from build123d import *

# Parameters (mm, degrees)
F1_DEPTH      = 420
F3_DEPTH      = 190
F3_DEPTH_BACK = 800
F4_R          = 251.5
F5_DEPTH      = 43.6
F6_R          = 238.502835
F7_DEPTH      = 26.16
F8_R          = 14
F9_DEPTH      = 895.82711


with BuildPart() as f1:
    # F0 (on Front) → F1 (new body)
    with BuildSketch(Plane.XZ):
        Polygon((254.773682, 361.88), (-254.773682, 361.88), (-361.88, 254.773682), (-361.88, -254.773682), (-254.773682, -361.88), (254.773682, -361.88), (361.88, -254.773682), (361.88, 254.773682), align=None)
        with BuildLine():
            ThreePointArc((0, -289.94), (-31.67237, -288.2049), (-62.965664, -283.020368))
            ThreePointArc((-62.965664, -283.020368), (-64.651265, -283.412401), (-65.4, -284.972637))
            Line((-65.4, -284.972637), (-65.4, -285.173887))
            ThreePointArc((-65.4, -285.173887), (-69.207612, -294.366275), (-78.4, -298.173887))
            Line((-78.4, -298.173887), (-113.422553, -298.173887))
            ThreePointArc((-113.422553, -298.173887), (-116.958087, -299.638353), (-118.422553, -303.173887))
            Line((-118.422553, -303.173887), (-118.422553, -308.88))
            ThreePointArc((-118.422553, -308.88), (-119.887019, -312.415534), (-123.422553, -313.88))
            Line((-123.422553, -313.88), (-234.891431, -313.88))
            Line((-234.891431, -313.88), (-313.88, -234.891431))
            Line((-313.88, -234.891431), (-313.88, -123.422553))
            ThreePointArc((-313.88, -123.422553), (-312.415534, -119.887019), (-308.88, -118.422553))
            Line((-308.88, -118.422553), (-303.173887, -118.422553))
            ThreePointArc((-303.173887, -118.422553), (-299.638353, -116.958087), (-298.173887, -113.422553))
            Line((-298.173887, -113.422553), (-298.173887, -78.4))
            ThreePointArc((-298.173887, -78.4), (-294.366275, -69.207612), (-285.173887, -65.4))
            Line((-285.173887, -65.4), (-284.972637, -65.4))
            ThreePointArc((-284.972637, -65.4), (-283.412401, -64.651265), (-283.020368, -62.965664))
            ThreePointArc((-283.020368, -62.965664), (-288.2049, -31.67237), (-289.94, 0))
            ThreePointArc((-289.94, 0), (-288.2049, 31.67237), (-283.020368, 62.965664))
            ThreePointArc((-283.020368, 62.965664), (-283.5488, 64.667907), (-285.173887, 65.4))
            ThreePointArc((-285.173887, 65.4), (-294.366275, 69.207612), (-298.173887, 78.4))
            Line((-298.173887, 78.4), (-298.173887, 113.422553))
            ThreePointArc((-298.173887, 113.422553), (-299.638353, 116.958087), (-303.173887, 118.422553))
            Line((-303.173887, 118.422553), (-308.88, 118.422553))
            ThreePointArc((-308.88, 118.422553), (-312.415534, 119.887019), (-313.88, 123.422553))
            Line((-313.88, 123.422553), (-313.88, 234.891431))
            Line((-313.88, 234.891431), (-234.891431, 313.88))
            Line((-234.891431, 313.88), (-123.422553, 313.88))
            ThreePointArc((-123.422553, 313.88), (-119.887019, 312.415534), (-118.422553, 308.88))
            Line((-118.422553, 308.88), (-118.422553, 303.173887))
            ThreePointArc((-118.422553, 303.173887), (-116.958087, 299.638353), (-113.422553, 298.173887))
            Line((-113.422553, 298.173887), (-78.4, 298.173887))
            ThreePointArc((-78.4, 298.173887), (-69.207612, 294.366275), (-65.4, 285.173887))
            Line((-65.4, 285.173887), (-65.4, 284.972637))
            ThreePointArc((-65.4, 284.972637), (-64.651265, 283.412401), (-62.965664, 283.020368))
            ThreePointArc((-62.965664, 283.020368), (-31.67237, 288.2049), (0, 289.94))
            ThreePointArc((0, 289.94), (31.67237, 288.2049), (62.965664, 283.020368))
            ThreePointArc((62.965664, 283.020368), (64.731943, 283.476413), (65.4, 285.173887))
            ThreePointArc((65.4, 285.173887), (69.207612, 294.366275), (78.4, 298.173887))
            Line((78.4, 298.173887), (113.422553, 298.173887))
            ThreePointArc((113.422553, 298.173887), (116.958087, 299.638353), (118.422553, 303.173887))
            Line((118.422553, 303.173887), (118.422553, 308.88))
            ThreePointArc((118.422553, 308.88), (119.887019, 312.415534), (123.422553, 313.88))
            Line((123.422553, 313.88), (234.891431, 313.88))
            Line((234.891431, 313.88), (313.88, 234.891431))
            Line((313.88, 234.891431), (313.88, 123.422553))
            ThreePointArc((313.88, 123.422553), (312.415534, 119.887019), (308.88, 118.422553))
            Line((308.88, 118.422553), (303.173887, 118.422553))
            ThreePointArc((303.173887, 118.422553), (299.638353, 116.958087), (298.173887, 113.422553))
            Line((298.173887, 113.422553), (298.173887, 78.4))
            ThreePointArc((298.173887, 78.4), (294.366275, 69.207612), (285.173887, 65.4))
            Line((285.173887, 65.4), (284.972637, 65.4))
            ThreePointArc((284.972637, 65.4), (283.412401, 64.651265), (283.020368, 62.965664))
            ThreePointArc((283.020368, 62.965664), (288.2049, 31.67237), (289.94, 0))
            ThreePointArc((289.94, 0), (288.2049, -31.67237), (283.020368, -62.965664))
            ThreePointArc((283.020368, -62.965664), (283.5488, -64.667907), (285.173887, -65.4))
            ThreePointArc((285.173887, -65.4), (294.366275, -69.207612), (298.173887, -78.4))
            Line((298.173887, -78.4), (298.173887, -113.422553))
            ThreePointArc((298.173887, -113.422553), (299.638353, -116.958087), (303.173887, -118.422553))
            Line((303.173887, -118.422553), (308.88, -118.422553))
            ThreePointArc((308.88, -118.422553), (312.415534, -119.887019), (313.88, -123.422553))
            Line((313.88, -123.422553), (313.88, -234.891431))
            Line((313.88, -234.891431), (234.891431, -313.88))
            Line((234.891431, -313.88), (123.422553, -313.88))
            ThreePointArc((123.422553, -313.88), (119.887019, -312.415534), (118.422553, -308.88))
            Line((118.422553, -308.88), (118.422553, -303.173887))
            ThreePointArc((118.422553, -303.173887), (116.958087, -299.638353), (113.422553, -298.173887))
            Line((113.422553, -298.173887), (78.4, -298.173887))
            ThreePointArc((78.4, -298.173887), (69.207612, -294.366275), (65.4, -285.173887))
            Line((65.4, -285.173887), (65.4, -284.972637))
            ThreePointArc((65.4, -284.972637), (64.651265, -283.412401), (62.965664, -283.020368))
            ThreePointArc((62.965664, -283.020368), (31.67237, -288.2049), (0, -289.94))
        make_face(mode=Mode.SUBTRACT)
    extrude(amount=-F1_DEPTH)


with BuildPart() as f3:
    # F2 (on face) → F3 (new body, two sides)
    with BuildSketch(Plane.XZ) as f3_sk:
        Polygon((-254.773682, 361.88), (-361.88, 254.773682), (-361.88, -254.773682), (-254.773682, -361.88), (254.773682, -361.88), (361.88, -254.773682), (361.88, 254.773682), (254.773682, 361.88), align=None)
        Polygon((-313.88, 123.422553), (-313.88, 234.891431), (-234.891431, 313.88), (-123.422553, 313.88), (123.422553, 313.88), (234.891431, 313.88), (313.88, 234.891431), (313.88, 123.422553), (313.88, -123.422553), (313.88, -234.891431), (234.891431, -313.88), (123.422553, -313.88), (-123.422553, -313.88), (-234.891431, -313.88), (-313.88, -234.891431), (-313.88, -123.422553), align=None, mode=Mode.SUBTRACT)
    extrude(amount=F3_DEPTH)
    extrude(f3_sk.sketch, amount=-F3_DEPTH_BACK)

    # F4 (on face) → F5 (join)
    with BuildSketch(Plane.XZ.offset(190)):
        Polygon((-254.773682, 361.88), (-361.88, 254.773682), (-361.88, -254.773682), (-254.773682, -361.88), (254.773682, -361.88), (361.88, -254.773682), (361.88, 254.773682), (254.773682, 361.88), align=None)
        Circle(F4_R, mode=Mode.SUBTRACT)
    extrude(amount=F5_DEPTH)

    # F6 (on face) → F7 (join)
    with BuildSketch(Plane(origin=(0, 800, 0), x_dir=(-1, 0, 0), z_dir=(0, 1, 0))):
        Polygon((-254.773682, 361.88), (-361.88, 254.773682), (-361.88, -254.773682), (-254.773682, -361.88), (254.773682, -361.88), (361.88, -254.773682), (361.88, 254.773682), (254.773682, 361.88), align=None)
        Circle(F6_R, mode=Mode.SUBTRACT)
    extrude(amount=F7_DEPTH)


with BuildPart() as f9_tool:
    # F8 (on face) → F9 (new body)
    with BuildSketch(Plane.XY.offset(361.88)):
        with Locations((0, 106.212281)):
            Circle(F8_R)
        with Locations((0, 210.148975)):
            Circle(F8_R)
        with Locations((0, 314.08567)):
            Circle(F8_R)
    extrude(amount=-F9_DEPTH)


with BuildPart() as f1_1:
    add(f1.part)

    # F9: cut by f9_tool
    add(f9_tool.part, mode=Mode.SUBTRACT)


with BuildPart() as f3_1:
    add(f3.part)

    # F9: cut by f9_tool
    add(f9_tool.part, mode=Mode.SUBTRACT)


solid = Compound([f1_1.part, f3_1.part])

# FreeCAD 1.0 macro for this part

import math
import FreeCAD as App
import Part
import Sketcher

doc = App.newDocument("Part")
body = doc.addObject("PartDesign::Body", "Body")

sketch1 = body.newObject("Sketcher::SketchObject", "Sketch")
sketch1.AttachmentSupport = (doc.getObject("XZ_Plane"), [""])
sketch1.MapMode = "FlatFace"
sketch1.addGeometry([
    Part.LineSegment(App.Vector(254.773682, 361.88, 0), App.Vector(-254.773682, 361.88, 0)),
    Part.LineSegment(App.Vector(-254.773682, 361.88, 0), App.Vector(-361.88, 254.773682, 0)),
    Part.LineSegment(App.Vector(-361.88, 254.773682, 0), App.Vector(-361.88, -254.773682, 0)),
    Part.LineSegment(App.Vector(-361.88, -254.773682, 0), App.Vector(-254.773682, -361.88, 0)),
    Part.LineSegment(App.Vector(-254.773682, -361.88, 0), App.Vector(254.773682, -361.88, 0)),
    Part.LineSegment(App.Vector(254.773682, -361.88, 0), App.Vector(361.88, -254.773682, 0)),
    Part.LineSegment(App.Vector(361.88, -254.773682, 0), App.Vector(361.88, 254.773682, 0)),
    Part.LineSegment(App.Vector(361.88, 254.773682, 0), App.Vector(254.773682, 361.88, 0)),
    Part.ArcOfCircle(Part.Circle(App.Vector(-0.000006, 0.000048, 0), App.Vector(0, 0, 1), 289.940048), math.radians(-89.999999), math.radians(-77.457256)),
    Part.ArcOfCircle(Part.Circle(App.Vector(0.000006, 0.000048, 0), App.Vector(0, 0, 1), 289.940048), math.radians(-102.542744), math.radians(-90.000001)),
    Part.ArcOfCircle(Part.Circle(App.Vector(-63.4, -284.972637, 0), App.Vector(0, 0, 1), 2), math.radians(77.457267), math.radians(179.999998)),
    Part.LineSegment(App.Vector(-65.4, -284.972637, 0), App.Vector(-65.4, -285.173887, 0)),
    Part.ArcOfCircle(Part.Circle(App.Vector(-78.400001, -285.173886, 0), App.Vector(0, 0, 1), 13.000001), math.radians(-89.999998), math.radians(-0.000002)),
    Part.LineSegment(App.Vector(-78.4, -298.173887, 0), App.Vector(-113.422553, -298.173887, 0)),
    Part.ArcOfCircle(Part.Circle(App.Vector(-113.422553, -303.173887, 0), App.Vector(0, 0, 1), 5), math.radians(89.999996), math.radians(180.000004)),
    Part.LineSegment(App.Vector(-118.422553, -303.173887, 0), App.Vector(-118.422553, -308.88, 0)),
    Part.ArcOfCircle(Part.Circle(App.Vector(-123.422553, -308.88, 0), App.Vector(0, 0, 1), 5), math.radians(-90.000004), math.radians(0.000004)),
    Part.LineSegment(App.Vector(-123.422553, -313.88, 0), App.Vector(-234.891431, -313.88, 0)),
    Part.LineSegment(App.Vector(-234.891431, -313.88, 0), App.Vector(-313.88, -234.891431, 0)),
    Part.LineSegment(App.Vector(-313.88, -234.891431, 0), App.Vector(-313.88, -123.422553, 0)),
    Part.ArcOfCircle(Part.Circle(App.Vector(-308.88, -123.422553, 0), App.Vector(0, 0, 1), 5), math.radians(89.999996), math.radians(180.000004)),
    Part.LineSegment(App.Vector(-308.88, -118.422553, 0), App.Vector(-303.173887, -118.422553, 0)),
    Part.ArcOfCircle(Part.Circle(App.Vector(-303.173887, -113.422553, 0), App.Vector(0, 0, 1), 5), math.radians(-90.000004), math.radians(0.000004)),
    Part.LineSegment(App.Vector(-298.173887, -113.422553, 0), App.Vector(-298.173887, -78.4, 0)),
    Part.ArcOfCircle(Part.Circle(App.Vector(-285.173886, -78.400001, 0), App.Vector(0, 0, 1), 13.000001), math.radians(90.000002), math.radians(179.999998)),
    Part.LineSegment(App.Vector(-285.173887, -65.4, 0), App.Vector(-284.972637, -65.4, 0)),
    Part.ArcOfCircle(Part.Circle(App.Vector(-284.972637, -63.4, 0), App.Vector(0, 0, 1), 2), math.radians(-89.999998), math.radians(12.542733)),
    Part.ArcOfCircle(Part.Circle(App.Vector(0.000048, 0.000006, 0), App.Vector(0, 0, 1), 289.940048), math.radians(-179.999999), math.radians(-167.457256)),
    Part.ArcOfCircle(Part.Circle(App.Vector(0.000048, -0.000006, 0), App.Vector(0, 0, 1), 289.940048), math.radians(167.457256), math.radians(179.999999)),
    Part.ArcOfCircle(Part.Circle(App.Vector(-285.173887, 63.230284, 0), App.Vector(0, 0, 1), 2.169716), math.radians(-7.00527), math.radians(90)),
    Part.ArcOfCircle(Part.Circle(App.Vector(-285.173886, 78.400001, 0), App.Vector(0, 0, 1), 13.000001), math.radians(-179.999998), math.radians(-90.000002)),
    Part.LineSegment(App.Vector(-298.173887, 78.4, 0), App.Vector(-298.173887, 113.422553, 0)),
    Part.ArcOfCircle(Part.Circle(App.Vector(-303.173887, 113.422553, 0), App.Vector(0, 0, 1), 5), math.radians(-0.000004), math.radians(90.000004)),
    Part.LineSegment(App.Vector(-303.173887, 118.422553, 0), App.Vector(-308.88, 118.422553, 0)),
    Part.ArcOfCircle(Part.Circle(App.Vector(-308.88, 123.422553, 0), App.Vector(0, 0, 1), 5), math.radians(179.999996), math.radians(270.000004)),
    Part.LineSegment(App.Vector(-313.88, 123.422553, 0), App.Vector(-313.88, 234.891431, 0)),
    Part.LineSegment(App.Vector(-313.88, 234.891431, 0), App.Vector(-234.891431, 313.88, 0)),
    Part.LineSegment(App.Vector(-234.891431, 313.88, 0), App.Vector(-123.422553, 313.88, 0)),
    Part.ArcOfCircle(Part.Circle(App.Vector(-123.422553, 308.88, 0), App.Vector(0, 0, 1), 5), math.radians(-0.000004), math.radians(90.000004)),
    Part.LineSegment(App.Vector(-118.422553, 308.88, 0), App.Vector(-118.422553, 303.173887, 0)),
    Part.ArcOfCircle(Part.Circle(App.Vector(-113.422553, 303.173887, 0), App.Vector(0, 0, 1), 5), math.radians(179.999996), math.radians(270.000004)),
    Part.LineSegment(App.Vector(-113.422553, 298.173887, 0), App.Vector(-78.4, 298.173887, 0)),
    Part.ArcOfCircle(Part.Circle(App.Vector(-78.400001, 285.173886, 0), App.Vector(0, 0, 1), 13.000001), math.radians(0.000002), math.radians(89.999998)),
    Part.LineSegment(App.Vector(-65.4, 285.173887, 0), App.Vector(-65.4, 284.972637, 0)),
    Part.ArcOfCircle(Part.Circle(App.Vector(-63.4, 284.972637, 0), App.Vector(0, 0, 1), 2), math.radians(-179.999998), math.radians(-77.457267)),
    Part.ArcOfCircle(Part.Circle(App.Vector(0.000006, -0.000048, 0), App.Vector(0, 0, 1), 289.940048), math.radians(90.000001), math.radians(102.542744)),
    Part.ArcOfCircle(Part.Circle(App.Vector(-0.000006, -0.000048, 0), App.Vector(0, 0, 1), 289.940048), math.radians(77.457256), math.radians(89.999999)),
    Part.ArcOfCircle(Part.Circle(App.Vector(63.401671, 284.980151, 0), App.Vector(0, 0, 1), 2.007698), math.radians(-102.542724), math.radians(5.537455)),
    Part.ArcOfCircle(Part.Circle(App.Vector(78.400001, 285.173886, 0), App.Vector(0, 0, 1), 13.000001), math.radians(90.000002), math.radians(179.999998)),
    Part.LineSegment(App.Vector(78.4, 298.173887, 0), App.Vector(113.422553, 298.173887, 0)),
    Part.ArcOfCircle(Part.Circle(App.Vector(113.422553, 303.173887, 0), App.Vector(0, 0, 1), 5), math.radians(-90.000004), math.radians(0.000004)),
    Part.LineSegment(App.Vector(118.422553, 303.173887, 0), App.Vector(118.422553, 308.88, 0)),
    Part.ArcOfCircle(Part.Circle(App.Vector(123.422553, 308.88, 0), App.Vector(0, 0, 1), 5), math.radians(89.999996), math.radians(180.000004)),
    Part.LineSegment(App.Vector(123.422553, 313.88, 0), App.Vector(234.891431, 313.88, 0)),
    Part.LineSegment(App.Vector(234.891431, 313.88, 0), App.Vector(313.88, 234.891431, 0)),
    Part.LineSegment(App.Vector(313.88, 234.891431, 0), App.Vector(313.88, 123.422553, 0)),
    Part.ArcOfCircle(Part.Circle(App.Vector(308.88, 123.422553, 0), App.Vector(0, 0, 1), 5), math.radians(-90.000004), math.radians(0.000004)),
    Part.LineSegment(App.Vector(308.88, 118.422553, 0), App.Vector(303.173887, 118.422553, 0)),
    Part.ArcOfCircle(Part.Circle(App.Vector(303.173887, 113.422553, 0), App.Vector(0, 0, 1), 5), math.radians(89.999996), math.radians(180.000004)),
    Part.LineSegment(App.Vector(298.173887, 113.422553, 0), App.Vector(298.173887, 78.4, 0)),
    Part.ArcOfCircle(Part.Circle(App.Vector(285.173886, 78.400001, 0), App.Vector(0, 0, 1), 13.000001), math.radians(-89.999998), math.radians(-0.000002)),
    Part.LineSegment(App.Vector(285.173887, 65.4, 0), App.Vector(284.972637, 65.4, 0)),
    Part.ArcOfCircle(Part.Circle(App.Vector(284.972637, 63.4, 0), App.Vector(0, 0, 1), 2), math.radians(90.000002), math.radians(192.542733)),
    Part.ArcOfCircle(Part.Circle(App.Vector(-0.000048, -0.000006, 0), App.Vector(0, 0, 1), 289.940048), math.radians(0.000001), math.radians(12.542744)),
    Part.ArcOfCircle(Part.Circle(App.Vector(-0.000048, 0.000006, 0), App.Vector(0, 0, 1), 289.940048), math.radians(-12.542744), math.radians(-0.000001)),
    Part.ArcOfCircle(Part.Circle(App.Vector(285.173887, -63.230284, 0), App.Vector(0, 0, 1), 2.169716), math.radians(172.99473), math.radians(270)),
    Part.ArcOfCircle(Part.Circle(App.Vector(285.173886, -78.400001, 0), App.Vector(0, 0, 1), 13.000001), math.radians(0.000002), math.radians(89.999998)),
    Part.LineSegment(App.Vector(298.173887, -78.4, 0), App.Vector(298.173887, -113.422553, 0)),
    Part.ArcOfCircle(Part.Circle(App.Vector(303.173887, -113.422553, 0), App.Vector(0, 0, 1), 5), math.radians(179.999996), math.radians(270.000004)),
    Part.LineSegment(App.Vector(303.173887, -118.422553, 0), App.Vector(308.88, -118.422553, 0)),
    Part.ArcOfCircle(Part.Circle(App.Vector(308.88, -123.422553, 0), App.Vector(0, 0, 1), 5), math.radians(-0.000004), math.radians(90.000004)),
    Part.LineSegment(App.Vector(313.88, -123.422553, 0), App.Vector(313.88, -234.891431, 0)),
    Part.LineSegment(App.Vector(313.88, -234.891431, 0), App.Vector(234.891431, -313.88, 0)),
    Part.LineSegment(App.Vector(234.891431, -313.88, 0), App.Vector(123.422553, -313.88, 0)),
    Part.ArcOfCircle(Part.Circle(App.Vector(123.422553, -308.88, 0), App.Vector(0, 0, 1), 5), math.radians(179.999996), math.radians(270.000004)),
    Part.LineSegment(App.Vector(118.422553, -308.88, 0), App.Vector(118.422553, -303.173887, 0)),
    Part.ArcOfCircle(Part.Circle(App.Vector(113.422553, -303.173887, 0), App.Vector(0, 0, 1), 5), math.radians(-0.000004), math.radians(90.000004)),
    Part.LineSegment(App.Vector(113.422553, -298.173887, 0), App.Vector(78.4, -298.173887, 0)),
    Part.ArcOfCircle(Part.Circle(App.Vector(78.400001, -285.173886, 0), App.Vector(0, 0, 1), 13.000001), math.radians(-179.999998), math.radians(-90.000002)),
    Part.LineSegment(App.Vector(65.4, -285.173887, 0), App.Vector(65.4, -284.972637, 0)),
    Part.ArcOfCircle(Part.Circle(App.Vector(63.4, -284.972637, 0), App.Vector(0, 0, 1), 2), math.radians(0.000002), math.radians(102.542733)),
], False)
sketch1.addConstraint([
    Sketcher.Constraint("Coincident", 0, 2, 1, 1),
    Sketcher.Constraint("Coincident", 1, 2, 2, 1),
    Sketcher.Constraint("Coincident", 2, 2, 3, 1),
    Sketcher.Constraint("Coincident", 3, 2, 4, 1),
    Sketcher.Constraint("Coincident", 4, 2, 5, 1),
    Sketcher.Constraint("Coincident", 5, 2, 6, 1),
    Sketcher.Constraint("Coincident", 6, 2, 7, 1),
    Sketcher.Constraint("Coincident", 7, 2, 0, 1),
    Sketcher.Constraint("Tangent", 8, 1, 9, 2),
    Sketcher.Constraint("Tangent", 9, 1, 10, 1),
    Sketcher.Constraint("Tangent", 10, 2, 11, 1),
    Sketcher.Constraint("Tangent", 11, 2, 12, 2),
    Sketcher.Constraint("Tangent", 12, 1, 13, 1),
    Sketcher.Constraint("Tangent", 13, 2, 14, 1),
    Sketcher.Constraint("Tangent", 14, 2, 15, 1),
    Sketcher.Constraint("Tangent", 15, 2, 16, 2),
    Sketcher.Constraint("Tangent", 16, 1, 17, 1),
    Sketcher.Constraint("Coincident", 17, 2, 18, 1),
    Sketcher.Constraint("Coincident", 18, 2, 19, 1),
    Sketcher.Constraint("Tangent", 19, 2, 20, 2),
    Sketcher.Constraint("Tangent", 20, 1, 21, 1),
    Sketcher.Constraint("Tangent", 21, 2, 22, 1),
    Sketcher.Constraint("Tangent", 22, 2, 23, 1),
    Sketcher.Constraint("Tangent", 23, 2, 24, 2),
    Sketcher.Constraint("Tangent", 24, 1, 25, 1),
    Sketcher.Constraint("Tangent", 25, 2, 26, 1),
    Sketcher.Constraint("Tangent", 26, 2, 27, 2),
    Sketcher.Constraint("Tangent", 27, 1, 28, 2),
    Sketcher.Constraint("Coincident", 28, 1, 29, 1),
    Sketcher.Constraint("Tangent", 29, 2, 30, 2),
    Sketcher.Constraint("Tangent", 30, 1, 31, 1),
    Sketcher.Constraint("Tangent", 31, 2, 32, 1),
    Sketcher.Constraint("Tangent", 32, 2, 33, 1),
    Sketcher.Constraint("Tangent", 33, 2, 34, 2),
    Sketcher.Constraint("Tangent", 34, 1, 35, 1),
    Sketcher.Constraint("Coincident", 35, 2, 36, 1),
    Sketcher.Constraint("Coincident", 36, 2, 37, 1),
    Sketcher.Constraint("Tangent", 37, 2, 38, 2),
    Sketcher.Constraint("Tangent", 38, 1, 39, 1),
    Sketcher.Constraint("Tangent", 39, 2, 40, 1),
    Sketcher.Constraint("Tangent", 40, 2, 41, 1),
    Sketcher.Constraint("Tangent", 41, 2, 42, 2),
    Sketcher.Constraint("Tangent", 42, 1, 43, 1),
    Sketcher.Constraint("Tangent", 43, 2, 44, 1),
    Sketcher.Constraint("Tangent", 44, 2, 45, 2),
    Sketcher.Constraint("Tangent", 45, 1, 46, 2),
    Sketcher.Constraint("Tangent", 46, 1, 47, 1),
    Sketcher.Constraint("Coincident", 47, 2, 48, 2),
    Sketcher.Constraint("Tangent", 48, 1, 49, 1),
    Sketcher.Constraint("Tangent", 49, 2, 50, 1),
    Sketcher.Constraint("Tangent", 50, 2, 51, 1),
    Sketcher.Constraint("Tangent", 51, 2, 52, 2),
    Sketcher.Constraint("Tangent", 52, 1, 53, 1),
    Sketcher.Constraint("Coincident", 53, 2, 54, 1),
    Sketcher.Constraint("Coincident", 54, 2, 55, 1),
    Sketcher.Constraint("Tangent", 55, 2, 56, 2),
    Sketcher.Constraint("Tangent", 56, 1, 57, 1),
    Sketcher.Constraint("Tangent", 57, 2, 58, 1),
    Sketcher.Constraint("Tangent", 58, 2, 59, 1),
    Sketcher.Constraint("Tangent", 59, 2, 60, 2),
    Sketcher.Constraint("Tangent", 60, 1, 61, 1),
    Sketcher.Constraint("Tangent", 61, 2, 62, 1),
    Sketcher.Constraint("Tangent", 62, 2, 63, 2),
    Sketcher.Constraint("Tangent", 63, 1, 64, 2),
    Sketcher.Constraint("Coincident", 64, 1, 65, 1),
    Sketcher.Constraint("Tangent", 65, 2, 66, 2),
    Sketcher.Constraint("Tangent", 66, 1, 67, 1),
    Sketcher.Constraint("Tangent", 67, 2, 68, 1),
    Sketcher.Constraint("Tangent", 68, 2, 69, 1),
    Sketcher.Constraint("Tangent", 69, 2, 70, 2),
    Sketcher.Constraint("Tangent", 70, 1, 71, 1),
    Sketcher.Constraint("Coincident", 71, 2, 72, 1),
    Sketcher.Constraint("Coincident", 72, 2, 73, 1),
    Sketcher.Constraint("Tangent", 73, 2, 74, 2),
    Sketcher.Constraint("Tangent", 74, 1, 75, 1),
    Sketcher.Constraint("Tangent", 75, 2, 76, 1),
    Sketcher.Constraint("Tangent", 76, 2, 77, 1),
    Sketcher.Constraint("Tangent", 77, 2, 78, 2),
    Sketcher.Constraint("Tangent", 78, 1, 79, 1),
    Sketcher.Constraint("Tangent", 79, 2, 80, 1),
    Sketcher.Constraint("Tangent", 80, 2, 8, 2),
    Sketcher.Constraint("Horizontal", 0),
    Sketcher.Constraint("Vertical", 2),
    Sketcher.Constraint("Horizontal", 4),
    Sketcher.Constraint("Vertical", 6),
    Sketcher.Constraint("Vertical", 11),
    Sketcher.Constraint("Horizontal", 13),
    Sketcher.Constraint("Vertical", 15),
    Sketcher.Constraint("Horizontal", 17),
    Sketcher.Constraint("Vertical", 19),
    Sketcher.Constraint("Horizontal", 21),
    Sketcher.Constraint("Vertical", 23),
    Sketcher.Constraint("Horizontal", 25),
    Sketcher.Constraint("Vertical", 31),
    Sketcher.Constraint("Horizontal", 33),
    Sketcher.Constraint("Vertical", 35),
    Sketcher.Constraint("Horizontal", 37),
    Sketcher.Constraint("Vertical", 39),
    Sketcher.Constraint("Horizontal", 41),
    Sketcher.Constraint("Vertical", 43),
    Sketcher.Constraint("Horizontal", 49),
    Sketcher.Constraint("Vertical", 51),
    Sketcher.Constraint("Horizontal", 53),
    Sketcher.Constraint("Vertical", 55),
    Sketcher.Constraint("Horizontal", 57),
    Sketcher.Constraint("Vertical", 59),
    Sketcher.Constraint("Horizontal", 61),
    Sketcher.Constraint("Vertical", 67),
    Sketcher.Constraint("Horizontal", 69),
    Sketcher.Constraint("Vertical", 71),
    Sketcher.Constraint("Horizontal", 73),
    Sketcher.Constraint("Vertical", 75),
    Sketcher.Constraint("Horizontal", 77),
    Sketcher.Constraint("Vertical", 79),
    Sketcher.Constraint("Equal", 8, 9),
    Sketcher.Constraint("Equal", 14, 16),
    Sketcher.Constraint("Equal", 16, 20),
    Sketcher.Constraint("Equal", 20, 22),
    Sketcher.Constraint("Equal", 12, 24),
    Sketcher.Constraint("Equal", 10, 26),
    Sketcher.Constraint("Equal", 9, 27),
    Sketcher.Constraint("Equal", 27, 28),
    Sketcher.Constraint("Equal", 24, 30),
    Sketcher.Constraint("Equal", 22, 32),
    Sketcher.Constraint("Equal", 32, 34),
    Sketcher.Constraint("Equal", 34, 38),
    Sketcher.Constraint("Equal", 38, 40),
    Sketcher.Constraint("Equal", 30, 42),
    Sketcher.Constraint("Equal", 26, 44),
    Sketcher.Constraint("Equal", 28, 45),
    Sketcher.Constraint("Equal", 45, 46),
    Sketcher.Constraint("Equal", 42, 48),
    Sketcher.Constraint("Equal", 40, 50),
    Sketcher.Constraint("Equal", 50, 52),
    Sketcher.Constraint("Equal", 52, 56),
    Sketcher.Constraint("Equal", 56, 58),
    Sketcher.Constraint("Equal", 48, 60),
    Sketcher.Constraint("Equal", 44, 62),
    Sketcher.Constraint("Equal", 46, 63),
    Sketcher.Constraint("Equal", 63, 64),
    Sketcher.Constraint("Equal", 29, 65),
    Sketcher.Constraint("Equal", 60, 66),
    Sketcher.Constraint("Equal", 58, 68),
    Sketcher.Constraint("Equal", 68, 70),
    Sketcher.Constraint("Equal", 70, 74),
    Sketcher.Constraint("Equal", 74, 76),
    Sketcher.Constraint("Equal", 66, 78),
    Sketcher.Constraint("Equal", 62, 80),
    Sketcher.Constraint("Symmetric", 8, 3, 45, 3, -1, 1),
    Sketcher.Constraint("Symmetric", 12, 3, 48, 3, -1, 1),
    Sketcher.Constraint("Symmetric", 16, 3, 52, 3, -1, 1),
    Sketcher.Constraint("Symmetric", 20, 3, 56, 3, -1, 1),
    Sketcher.Constraint("Symmetric", 24, 3, 60, 3, -1, 1),
    Sketcher.Constraint("Symmetric", 27, 3, 63, 3, -1, 1),
    Sketcher.Constraint("Symmetric", 29, 3, 65, 3, -1, 1),
    Sketcher.Constraint("Symmetric", 32, 3, 68, 3, -1, 1),
    Sketcher.Constraint("Symmetric", 38, 3, 74, 3, -1, 1),
    Sketcher.Constraint("Symmetric", 42, 3, 78, 3, -1, 1),
    Sketcher.Constraint("Symmetric", 0, 2, 4, 2, -1, 1),
    Sketcher.Constraint("Symmetric", 1, 2, 5, 2, -1, 1),
    Sketcher.Constraint("Symmetric", 35, 2, 71, 2, -1, 1),
    Sketcher.Constraint("Symmetric", 42, 3, 48, 3, -2),
    Sketcher.Constraint("Symmetric", 38, 3, 52, 3, -2),
    Sketcher.Constraint("Symmetric", 34, 3, 56, 3, -2),
    Sketcher.Constraint("Symmetric", 30, 3, 60, 3, -2),
    Sketcher.Constraint("Symmetric", 44, 2, 46, 1, -2),
    Sketcher.Constraint("Symmetric", 28, 1, 62, 2, -2),
    Sketcher.Constraint("PointOnObject", 8, 1, -2),
    Sketcher.Constraint("PointOnObject", 27, 1, -1),
    Sketcher.Constraint("PointOnObject", 45, 1, -2),
    Sketcher.Constraint("PointOnObject", 63, 1, -1),
    Sketcher.Constraint("Perpendicular", 1, 3),
    Sketcher.Constraint("Perpendicular", 5, 7),
    Sketcher.Constraint("Parallel", 7, 18),
    Sketcher.Constraint("Perpendicular", 18, 36),
    Sketcher.Constraint("Perpendicular", 36, 54),
    Sketcher.Constraint("Perpendicular", 54, 72),
    Sketcher.Constraint("Horizontal", 2, 2, 5, 2),
    Sketcher.Constraint("Horizontal", 1, 2, 6, 2),
    Sketcher.Constraint("Horizontal", 42, 1, 47, 2),
    Sketcher.Constraint("Horizontal", 35, 2, 54, 2),
    Sketcher.Constraint("Horizontal", 18, 2, 71, 2),
    Sketcher.Constraint("Vertical", 24, 3, 29, 3),
    Sketcher.Constraint("Vertical", 0, 2, 3, 2),
    Sketcher.Constraint("Equal", 4, 2),
    Sketcher.Constraint("Equal", 61, 11),
    Sketcher.Constraint("Equal", 69, 15),
    Sketcher.Constraint("Equal", 73, 19),
    Sketcher.Constraint("Equal", 77, 23),
    Sketcher.Constraint("Radius", 10, 2.0),
    Sketcher.Constraint("Radius", 12, 13.000001),
    Sketcher.Constraint("Radius", 14, 5.0),
    Sketcher.Constraint("DistanceX", 10, 3, -1, 1, 63.4),
    Sketcher.Constraint("DistanceY", 24, 3, -1, 1, 78.400001),
    Sketcher.Constraint("Radius", 47, 2.007698),
    Sketcher.Constraint("DistanceY", 16, 3, -1, 1, 308.88),
    Sketcher.Constraint("DistanceY", -1, 1, 0, 2, 361.88),
    Sketcher.Constraint("DistanceY", 8, 1, -1, 1, 289.94),
    Sketcher.Constraint("Radius", 8, 289.940048),
    Sketcher.Constraint("DistanceX", 17, 2, 17, 1, 111.468878),
    Sketcher.Constraint("DistanceX", 0, 2, 0, 1, 509.547364),
    Sketcher.Constraint("DistanceX", 13, 2, 13, 1, 35.022553),
])
pad1 = body.newObject("PartDesign::Pad", "Pad")
pad1.Profile = sketch1
pad1.Length = 420
pad1.Reversed = True
body2 = doc.addObject("PartDesign::Body", "Body001")

sketch2 = body2.newObject("Sketcher::SketchObject", "Sketch001")
sketch2.AttachmentSupport = (doc.getObject("XZ_Plane001"), [""])
sketch2.MapMode = "FlatFace"
sketch2.addGeometry([
    Part.LineSegment(App.Vector(-255, 362, 0), App.Vector(-362, 255, 0)),
    Part.LineSegment(App.Vector(-362, 255, 0), App.Vector(-362, -255, 0)),
    Part.LineSegment(App.Vector(-362, -255, 0), App.Vector(-255, -362, 0)),
    Part.LineSegment(App.Vector(-255, -362, 0), App.Vector(255, -362, 0)),
    Part.LineSegment(App.Vector(255, -362, 0), App.Vector(362, -255, 0)),
    Part.LineSegment(App.Vector(362, -255, 0), App.Vector(362, 255, 0)),
    Part.LineSegment(App.Vector(362, 255, 0), App.Vector(255, 362, 0)),
    Part.LineSegment(App.Vector(255, 362, 0), App.Vector(-255, 362, 0)),
    Part.LineSegment(App.Vector(-314, -235, 0), App.Vector(-314, 235, 0)),
    Part.LineSegment(App.Vector(-314, 235, 0), App.Vector(-235, 314, 0)),
    Part.LineSegment(App.Vector(-235, 314, 0), App.Vector(235, 314, 0)),
    Part.LineSegment(App.Vector(235, 314, 0), App.Vector(314, 235, 0)),
    Part.LineSegment(App.Vector(314, 235, 0), App.Vector(314, -235, 0)),
    Part.LineSegment(App.Vector(314, -235, 0), App.Vector(235, -314, 0)),
    Part.LineSegment(App.Vector(235, -314, 0), App.Vector(-235, -314, 0)),
    Part.LineSegment(App.Vector(-235, -314, 0), App.Vector(-314, -235, 0)),
], False)
sketch2.addConstraint([
    Sketcher.Constraint("Coincident", 0, 2, 1, 1),
    Sketcher.Constraint("Coincident", 1, 2, 2, 1),
    Sketcher.Constraint("Coincident", 2, 2, 3, 1),
    Sketcher.Constraint("Coincident", 3, 2, 4, 1),
    Sketcher.Constraint("Coincident", 4, 2, 5, 1),
    Sketcher.Constraint("Coincident", 5, 2, 6, 1),
    Sketcher.Constraint("Coincident", 6, 2, 7, 1),
    Sketcher.Constraint("Coincident", 7, 2, 0, 1),
    Sketcher.Constraint("Coincident", 8, 2, 9, 1),
    Sketcher.Constraint("Coincident", 9, 2, 10, 1),
    Sketcher.Constraint("Coincident", 10, 2, 11, 1),
    Sketcher.Constraint("Coincident", 11, 2, 12, 1),
    Sketcher.Constraint("Coincident", 12, 2, 13, 1),
    Sketcher.Constraint("Coincident", 13, 2, 14, 1),
    Sketcher.Constraint("Coincident", 14, 2, 15, 1),
    Sketcher.Constraint("Coincident", 15, 2, 8, 1),
    Sketcher.Constraint("Vertical", 1),
    Sketcher.Constraint("Horizontal", 3),
    Sketcher.Constraint("Vertical", 5),
    Sketcher.Constraint("Horizontal", 7),
    Sketcher.Constraint("Vertical", 8),
    Sketcher.Constraint("Horizontal", 10),
    Sketcher.Constraint("Vertical", 12),
    Sketcher.Constraint("Horizontal", 14),
    Sketcher.Constraint("Symmetric", 0, 2, 4, 2, -1, 1),
    Sketcher.Constraint("Symmetric", 2, 2, 6, 2, -1, 1),
    Sketcher.Constraint("Symmetric", 8, 2, 12, 2, -1, 1),
    Sketcher.Constraint("Symmetric", 9, 2, 13, 2, -1, 1),
    Sketcher.Constraint("Perpendicular", 0, 2),
    Sketcher.Constraint("Perpendicular", 2, 4),
    Sketcher.Constraint("Perpendicular", 4, 6),
    Sketcher.Constraint("Perpendicular", 6, 9),
    Sketcher.Constraint("Perpendicular", 9, 11),
    Sketcher.Constraint("Perpendicular", 13, 15),
    Sketcher.Constraint("Horizontal", 1, 2, 4, 2),
    Sketcher.Constraint("Horizontal", 8, 2, 11, 2),
    Sketcher.Constraint("Horizontal", 12, 2, 15, 2),
    Sketcher.Constraint("Vertical", 3, 2, 6, 2),
    Sketcher.Constraint("Equal", 7, 1),
    Sketcher.Constraint("Equal", 14, 8),
    Sketcher.Constraint("DistanceX", 0, 2, 8, 2, 48.0),
    Sketcher.Constraint("DistanceX", 0, 2, -1, 1, 361.88),
    Sketcher.Constraint("DistanceX", 10, 1, 10, 2, 469.782862),
    Sketcher.Constraint("DistanceX", 3, 1, 3, 2, 509.547364),
])
pad2 = body2.newObject("PartDesign::Pad", "Pad001")
pad2.Profile = sketch2
pad2.Type = "TwoLengths"
pad2.Length = 190
pad2.Length2 = 800

sketch3 = body2.newObject("Sketcher::SketchObject", "Sketch002")
sketch3.AttachmentSupport = (doc.getObject("XZ_Plane001"), [""])
sketch3.MapMode = "FlatFace"
sketch3.AttachmentOffset = App.Placement(App.Vector(0, 0, 190), App.Rotation())
sketch3.addGeometry([
    Part.LineSegment(App.Vector(-255, 362, 0), App.Vector(-362, 255, 0)),
    Part.LineSegment(App.Vector(-362, 255, 0), App.Vector(-362, -255, 0)),
    Part.LineSegment(App.Vector(-362, -255, 0), App.Vector(-255, -362, 0)),
    Part.LineSegment(App.Vector(-255, -362, 0), App.Vector(255, -362, 0)),
    Part.LineSegment(App.Vector(255, -362, 0), App.Vector(362, -255, 0)),
    Part.LineSegment(App.Vector(362, -255, 0), App.Vector(362, 255, 0)),
    Part.LineSegment(App.Vector(362, 255, 0), App.Vector(255, 362, 0)),
    Part.LineSegment(App.Vector(255, 362, 0), App.Vector(-255, 362, 0)),
    Part.Circle(App.Vector(0, 0, 0), App.Vector(0, 0, 1), 252),
], False)
sketch3.addConstraint([
    Sketcher.Constraint("Coincident", 0, 2, 1, 1),
    Sketcher.Constraint("Coincident", 1, 2, 2, 1),
    Sketcher.Constraint("Coincident", 2, 2, 3, 1),
    Sketcher.Constraint("Coincident", 3, 2, 4, 1),
    Sketcher.Constraint("Coincident", 4, 2, 5, 1),
    Sketcher.Constraint("Coincident", 5, 2, 6, 1),
    Sketcher.Constraint("Coincident", 6, 2, 7, 1),
    Sketcher.Constraint("Coincident", 7, 2, 0, 1),
    Sketcher.Constraint("Vertical", 1),
    Sketcher.Constraint("Horizontal", 3),
    Sketcher.Constraint("Vertical", 5),
    Sketcher.Constraint("Horizontal", 7),
    Sketcher.Constraint("Coincident", 8, 3, -1, 1),
    Sketcher.Constraint("Symmetric", 0, 2, 4, 2, -1, 1),
    Sketcher.Constraint("Symmetric", 2, 2, 6, 2, -1, 1),
    Sketcher.Constraint("Perpendicular", 0, 2),
    Sketcher.Constraint("Perpendicular", 2, 4),
    Sketcher.Constraint("Perpendicular", 4, 6),
    Sketcher.Constraint("Horizontal", 1, 2, 4, 2),
    Sketcher.Constraint("Vertical", 3, 2, 6, 2),
    Sketcher.Constraint("Equal", 7, 1),
    Sketcher.Constraint("Diameter", 8, 503.0),
    Sketcher.Constraint("DistanceX", 0, 2, -1, 1, 361.88),
    Sketcher.Constraint("DistanceX", 3, 1, 3, 2, 509.547364),
])
pad3 = body2.newObject("PartDesign::Pad", "Pad002")
pad3.Profile = sketch3
pad3.Length = 43.6

sketch4 = body2.newObject("Sketcher::SketchObject", "Sketch003")
sketch4.AttachmentSupport = (doc.getObject("XZ_Plane001"), [""])
sketch4.MapMode = "FlatFace"
sketch4.AttachmentOffset = App.Placement(App.Vector(0, 0, -800), App.Rotation())
sketch4.addGeometry([
    Part.LineSegment(App.Vector(255, 362, 0), App.Vector(362, 255, 0)),
    Part.LineSegment(App.Vector(362, 255, 0), App.Vector(362, -255, 0)),
    Part.LineSegment(App.Vector(362, -255, 0), App.Vector(255, -362, 0)),
    Part.LineSegment(App.Vector(255, -362, 0), App.Vector(-255, -362, 0)),
    Part.LineSegment(App.Vector(-255, -362, 0), App.Vector(-362, -255, 0)),
    Part.LineSegment(App.Vector(-362, -255, 0), App.Vector(-362, 255, 0)),
    Part.LineSegment(App.Vector(-362, 255, 0), App.Vector(-255, 362, 0)),
    Part.LineSegment(App.Vector(-255, 362, 0), App.Vector(255, 362, 0)),
    Part.Circle(App.Vector(0, 0, 0), App.Vector(0, 0, 1), 239),
], False)
sketch4.addConstraint([
    Sketcher.Constraint("Coincident", 0, 2, 1, 1),
    Sketcher.Constraint("Coincident", 1, 2, 2, 1),
    Sketcher.Constraint("Coincident", 2, 2, 3, 1),
    Sketcher.Constraint("Coincident", 3, 2, 4, 1),
    Sketcher.Constraint("Coincident", 4, 2, 5, 1),
    Sketcher.Constraint("Coincident", 5, 2, 6, 1),
    Sketcher.Constraint("Coincident", 6, 2, 7, 1),
    Sketcher.Constraint("Coincident", 7, 2, 0, 1),
    Sketcher.Constraint("Vertical", 1),
    Sketcher.Constraint("Horizontal", 3),
    Sketcher.Constraint("Vertical", 5),
    Sketcher.Constraint("Horizontal", 7),
    Sketcher.Constraint("Coincident", 8, 3, -1, 1),
    Sketcher.Constraint("Symmetric", 0, 2, 4, 2, -1, 1),
    Sketcher.Constraint("Symmetric", 2, 2, 6, 2, -1, 1),
    Sketcher.Constraint("Perpendicular", 0, 2),
    Sketcher.Constraint("Perpendicular", 2, 4),
    Sketcher.Constraint("Perpendicular", 4, 6),
    Sketcher.Constraint("Horizontal", 1, 2, 4, 2),
    Sketcher.Constraint("Vertical", 3, 2, 6, 2),
    Sketcher.Constraint("Equal", 7, 1),
    Sketcher.Constraint("Diameter", 8, 477.00567),
    Sketcher.Constraint("DistanceX", -1, 1, 0, 2, 361.88),
    Sketcher.Constraint("DistanceX", 3, 2, 3, 1, 509.547364),
])
pad4 = body2.newObject("PartDesign::Pad", "Pad003")
pad4.Profile = sketch4
pad4.Length = 26.16
pad4.Reversed = True
body3 = doc.addObject("PartDesign::Body", "Body002")
body3.AllowCompound = True

sketch5 = body3.newObject("Sketcher::SketchObject", "Sketch004")
sketch5.AttachmentSupport = (doc.getObject("XY_Plane002"), [""])
sketch5.MapMode = "FlatFace"
sketch5.AttachmentOffset = App.Placement(App.Vector(0, 0, 361.88), App.Rotation())
sketch5.addGeometry([
    Part.Circle(App.Vector(0, 106, 0), App.Vector(0, 0, 1), 14),
    Part.Circle(App.Vector(0, 210, 0), App.Vector(0, 0, 1), 14),
    Part.Circle(App.Vector(0, 314, 0), App.Vector(0, 0, 1), 14),
], False)
sketch5.addConstraint([
    Sketcher.Constraint("Equal", 0, 1),
    Sketcher.Constraint("Equal", 1, 2),
    Sketcher.Constraint("PointOnObject", 0, 3, -2),
    Sketcher.Constraint("PointOnObject", 1, 3, -2),
    Sketcher.Constraint("PointOnObject", 2, 3, -2),
    Sketcher.Constraint("Diameter", 0, 28.0),
    Sketcher.Constraint("DistanceY", -1, 1, 0, 3, 106.212281),
    Sketcher.Constraint("DistanceY", -1, 1, 2, 3, 314.08567),
    Sketcher.Constraint("DistanceY", -1, 1, 1, 3, 210.148975),
])
pad5 = body3.newObject("PartDesign::Pad", "Pad004")
pad5.Profile = sketch5
pad5.Length = 895.82711
pad5.Reversed = True
doc.recompute()

body4 = doc.addObject("PartDesign::Body", "Body003")
body4.BaseFeature = body3
boolean = body.newObject("PartDesign::Boolean", "Boolean")
boolean.Type = "Cut"
boolean.addObjects([body4])
doc.recompute()

boolean2 = body2.newObject("PartDesign::Boolean", "Boolean001")
boolean2.Type = "Cut"
boolean2.addObjects([body3])

doc.recompute()
